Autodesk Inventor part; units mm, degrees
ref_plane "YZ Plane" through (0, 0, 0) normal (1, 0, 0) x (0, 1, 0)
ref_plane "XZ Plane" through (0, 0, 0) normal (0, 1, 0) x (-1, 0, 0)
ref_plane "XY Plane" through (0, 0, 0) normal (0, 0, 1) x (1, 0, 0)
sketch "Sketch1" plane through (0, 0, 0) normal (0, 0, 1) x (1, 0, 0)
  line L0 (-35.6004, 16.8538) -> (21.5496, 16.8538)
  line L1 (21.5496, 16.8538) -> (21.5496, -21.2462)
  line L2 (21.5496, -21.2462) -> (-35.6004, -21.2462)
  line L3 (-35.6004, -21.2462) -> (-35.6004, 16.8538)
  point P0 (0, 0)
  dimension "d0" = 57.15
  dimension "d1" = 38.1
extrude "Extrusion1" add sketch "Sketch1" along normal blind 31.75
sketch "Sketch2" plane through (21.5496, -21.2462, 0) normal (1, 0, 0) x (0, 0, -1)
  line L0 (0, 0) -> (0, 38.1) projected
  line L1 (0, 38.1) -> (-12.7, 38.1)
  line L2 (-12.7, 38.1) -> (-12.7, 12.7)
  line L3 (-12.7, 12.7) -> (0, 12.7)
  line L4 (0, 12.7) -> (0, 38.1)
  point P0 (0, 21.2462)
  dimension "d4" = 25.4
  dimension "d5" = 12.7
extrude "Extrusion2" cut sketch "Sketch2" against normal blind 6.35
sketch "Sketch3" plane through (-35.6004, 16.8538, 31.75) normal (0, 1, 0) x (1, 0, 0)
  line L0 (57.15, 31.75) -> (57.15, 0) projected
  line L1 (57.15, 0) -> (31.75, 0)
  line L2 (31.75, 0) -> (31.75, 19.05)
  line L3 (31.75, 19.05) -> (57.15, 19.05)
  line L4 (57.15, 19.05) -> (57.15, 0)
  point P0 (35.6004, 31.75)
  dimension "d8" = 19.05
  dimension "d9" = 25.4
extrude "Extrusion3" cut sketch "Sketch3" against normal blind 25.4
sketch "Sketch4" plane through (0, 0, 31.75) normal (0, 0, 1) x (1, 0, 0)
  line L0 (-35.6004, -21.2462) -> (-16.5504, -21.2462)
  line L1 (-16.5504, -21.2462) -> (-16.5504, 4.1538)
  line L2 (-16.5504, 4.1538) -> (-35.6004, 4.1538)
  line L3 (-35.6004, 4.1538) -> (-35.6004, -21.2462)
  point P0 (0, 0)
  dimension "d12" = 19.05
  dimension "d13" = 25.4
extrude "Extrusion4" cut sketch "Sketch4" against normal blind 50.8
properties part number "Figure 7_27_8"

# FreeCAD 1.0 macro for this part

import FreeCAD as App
import Part
import Sketcher
Q = App.Units.Quantity

doc = App.newDocument("Part")
body = doc.addObject("PartDesign::Body", "Body")

sketch1 = doc.addObject("Sketcher::SketchObject", "Sketch")
body.addObject(sketch1)
sketch1.AttachmentSupport = (doc.XY_Plane, [""])
sketch1.MapMode = "FlatFace"
sketch1.addGeometry([
    Part.LineSegment(App.Vector(22, 17, 0), App.Vector(-36, 17, 0)),
    Part.LineSegment(App.Vector(-36, 17, 0), App.Vector(-36, -21, 0)),
    Part.LineSegment(App.Vector(-36, -21, 0), App.Vector(22, -21, 0)),
    Part.LineSegment(App.Vector(22, -21, 0), App.Vector(22, 17, 0)),
], False)
sketch1.addConstraint([
    Sketcher.Constraint("Coincident", 0, 2, 1, 1),
    Sketcher.Constraint("Coincident", 1, 2, 2, 1),
    Sketcher.Constraint("Coincident", 2, 2, 3, 1),
    Sketcher.Constraint("Coincident", 3, 2, 0, 1),
    Sketcher.Constraint("Horizontal", 0),
    Sketcher.Constraint("Vertical", 1),
    Sketcher.Constraint("Horizontal", 2),
    Sketcher.Constraint("Vertical", 3),
    Sketcher.Constraint("DistanceY", 1, 2, 1, 1, Q("1.5 in")),
    Sketcher.Constraint("DistanceX", 0, 2, 0, 1, Q("2.25 in")),
    Sketcher.Constraint("DistanceX", 0, 2, -1, 1, Q("1.4016 in")),
    Sketcher.Constraint("DistanceY", -1, 1, 0, 2, 16.8538),
])
pad1 = doc.addObject("PartDesign::Pad", "Pad")
body.addObject(pad1)
pad1.Profile = sketch1
pad1.Length = Q("1.25 in")

sketch2 = doc.addObject("Sketcher::SketchObject", "Sketch001")
body.addObject(sketch2)
sketch2.AttachmentSupport = (doc.YZ_Plane, [""])
sketch2.MapMode = "FlatFace"
sketch2.AttachmentOffset = App.Placement(App.Vector(0, 0, 0.8484094 * 25.4), App.Rotation())
sketch2.addGeometry([
    Part.LineSegment(App.Vector(-9, 13, 0), App.Vector(-9, 0, 0)),
    Part.LineSegment(App.Vector(-9, 0, 0), App.Vector(17, 0, 0)),
    Part.LineSegment(App.Vector(17, 0, 0), App.Vector(17, 13, 0)),
    Part.LineSegment(App.Vector(17, 13, 0), App.Vector(-9, 13, 0)),
], False)
sketch2.addConstraint([
    Sketcher.Constraint("Coincident", 0, 2, 1, 1),
    Sketcher.Constraint("Coincident", 1, 2, 2, 1),
    Sketcher.Constraint("Coincident", 2, 2, 3, 1),
    Sketcher.Constraint("Coincident", 3, 2, 0, 1),
    Sketcher.Constraint("Vertical", 0),
    Sketcher.Constraint("Horizontal", 1),
    Sketcher.Constraint("Vertical", 2),
    Sketcher.Constraint("Horizontal", 3),
    Sketcher.Constraint("PointOnObject", 0, 2, -1),
    Sketcher.Constraint("DistanceX", 1, 1, 1, 2, Q("1 in")),
    Sketcher.Constraint("DistanceY", 0, 2, 0, 1, Q("0.5 in")),
    Sketcher.Constraint("DistanceX", 0, 2, -1, 1, 8.5462),
])
pocket1 = doc.addObject("PartDesign::Pocket", "Pocket")
body.addObject(pocket1)
pocket1.Profile = sketch2
pocket1.Length = Q("0.25 in")

sketch3 = doc.addObject("Sketcher::SketchObject", "Sketch002")
body.addObject(sketch3)
sketch3.AttachmentSupport = (doc.XZ_Plane, [""])
sketch3.MapMode = "FlatFace"
sketch3.AttachmentOffset = App.Placement(App.Vector(0, 0, -16.8538), App.Rotation())
sketch3.addGeometry([
    Part.LineSegment(App.Vector(22, 32, 0), App.Vector(22, 13, 0)),
    Part.LineSegment(App.Vector(22, 13, 0), App.Vector(-4, 13, 0)),
    Part.LineSegment(App.Vector(-4, 13, 0), App.Vector(-4, 32, 0)),
    Part.LineSegment(App.Vector(-4, 32, 0), App.Vector(22, 32, 0)),
], False)
sketch3.addConstraint([
    Sketcher.Constraint("Coincident", 0, 2, 1, 1),
    Sketcher.Constraint("Coincident", 1, 2, 2, 1),
    Sketcher.Constraint("Coincident", 2, 2, 3, 1),
    Sketcher.Constraint("Coincident", 3, 2, 0, 1),
    Sketcher.Constraint("Vertical", 0),
    Sketcher.Constraint("Horizontal", 1),
    Sketcher.Constraint("Vertical", 2),
    Sketcher.Constraint("Horizontal", 3),
    Sketcher.Constraint("DistanceX", 1, 2, 1, 1, Q("1 in")),
    Sketcher.Constraint("DistanceY", 0, 2, 0, 1, Q("0.75 in")),
    Sketcher.Constraint("DistanceY", -1, 1, 0, 2, Q("0.5 in")),
    Sketcher.Constraint("DistanceX", -1, 1, 0, 2, Q("0.8484 in")),
])
pocket2 = doc.addObject("PartDesign::Pocket", "Pocket001")
body.addObject(pocket2)
pocket2.Profile = sketch3
pocket2.Length = Q("1 in")
pocket2.Reversed = True

sketch4 = doc.addObject("Sketcher::SketchObject", "Sketch003")
body.addObject(sketch4)
sketch4.AttachmentSupport = (doc.XY_Plane, [""])
sketch4.MapMode = "FlatFace"
sketch4.AttachmentOffset = App.Placement(App.Vector(0, 0, 1.25 * 25.4), App.Rotation())
sketch4.addGeometry([
    Part.LineSegment(App.Vector(-36, 4, 0), App.Vector(-36, -21, 0)),
    Part.LineSegment(App.Vector(-36, -21, 0), App.Vector(-17, -21, 0)),
    Part.LineSegment(App.Vector(-17, -21, 0), App.Vector(-17, 4, 0)),
    Part.LineSegment(App.Vector(-17, 4, 0), App.Vector(-36, 4, 0)),
], False)
sketch4.addConstraint([
    Sketcher.Constraint("Coincident", 0, 2, 1, 1),
    Sketcher.Constraint("Coincident", 1, 2, 2, 1),
    Sketcher.Constraint("Coincident", 2, 2, 3, 1),
    Sketcher.Constraint("Coincident", 3, 2, 0, 1),
    Sketcher.Constraint("Vertical", 0),
    Sketcher.Constraint("Horizontal", 1),
    Sketcher.Constraint("Vertical", 2),
    Sketcher.Constraint("Horizontal", 3),
    Sketcher.Constraint("DistanceY", 0, 2, 0, 1, Q("1 in")),
    Sketcher.Constraint("DistanceX", 1, 1, 1, 2, Q("0.75 in")),
    Sketcher.Constraint("DistanceX", 0, 2, -1, 1, Q("1.4016 in")),
    Sketcher.Constraint("DistanceY", 0, 2, -1, 1, 21.2462),
])
pocket3 = doc.addObject("PartDesign::Pocket", "Pocket002")
body.addObject(pocket3)
pocket3.Profile = sketch4
pocket3.Length = Q("2 in")

doc.recompute()
